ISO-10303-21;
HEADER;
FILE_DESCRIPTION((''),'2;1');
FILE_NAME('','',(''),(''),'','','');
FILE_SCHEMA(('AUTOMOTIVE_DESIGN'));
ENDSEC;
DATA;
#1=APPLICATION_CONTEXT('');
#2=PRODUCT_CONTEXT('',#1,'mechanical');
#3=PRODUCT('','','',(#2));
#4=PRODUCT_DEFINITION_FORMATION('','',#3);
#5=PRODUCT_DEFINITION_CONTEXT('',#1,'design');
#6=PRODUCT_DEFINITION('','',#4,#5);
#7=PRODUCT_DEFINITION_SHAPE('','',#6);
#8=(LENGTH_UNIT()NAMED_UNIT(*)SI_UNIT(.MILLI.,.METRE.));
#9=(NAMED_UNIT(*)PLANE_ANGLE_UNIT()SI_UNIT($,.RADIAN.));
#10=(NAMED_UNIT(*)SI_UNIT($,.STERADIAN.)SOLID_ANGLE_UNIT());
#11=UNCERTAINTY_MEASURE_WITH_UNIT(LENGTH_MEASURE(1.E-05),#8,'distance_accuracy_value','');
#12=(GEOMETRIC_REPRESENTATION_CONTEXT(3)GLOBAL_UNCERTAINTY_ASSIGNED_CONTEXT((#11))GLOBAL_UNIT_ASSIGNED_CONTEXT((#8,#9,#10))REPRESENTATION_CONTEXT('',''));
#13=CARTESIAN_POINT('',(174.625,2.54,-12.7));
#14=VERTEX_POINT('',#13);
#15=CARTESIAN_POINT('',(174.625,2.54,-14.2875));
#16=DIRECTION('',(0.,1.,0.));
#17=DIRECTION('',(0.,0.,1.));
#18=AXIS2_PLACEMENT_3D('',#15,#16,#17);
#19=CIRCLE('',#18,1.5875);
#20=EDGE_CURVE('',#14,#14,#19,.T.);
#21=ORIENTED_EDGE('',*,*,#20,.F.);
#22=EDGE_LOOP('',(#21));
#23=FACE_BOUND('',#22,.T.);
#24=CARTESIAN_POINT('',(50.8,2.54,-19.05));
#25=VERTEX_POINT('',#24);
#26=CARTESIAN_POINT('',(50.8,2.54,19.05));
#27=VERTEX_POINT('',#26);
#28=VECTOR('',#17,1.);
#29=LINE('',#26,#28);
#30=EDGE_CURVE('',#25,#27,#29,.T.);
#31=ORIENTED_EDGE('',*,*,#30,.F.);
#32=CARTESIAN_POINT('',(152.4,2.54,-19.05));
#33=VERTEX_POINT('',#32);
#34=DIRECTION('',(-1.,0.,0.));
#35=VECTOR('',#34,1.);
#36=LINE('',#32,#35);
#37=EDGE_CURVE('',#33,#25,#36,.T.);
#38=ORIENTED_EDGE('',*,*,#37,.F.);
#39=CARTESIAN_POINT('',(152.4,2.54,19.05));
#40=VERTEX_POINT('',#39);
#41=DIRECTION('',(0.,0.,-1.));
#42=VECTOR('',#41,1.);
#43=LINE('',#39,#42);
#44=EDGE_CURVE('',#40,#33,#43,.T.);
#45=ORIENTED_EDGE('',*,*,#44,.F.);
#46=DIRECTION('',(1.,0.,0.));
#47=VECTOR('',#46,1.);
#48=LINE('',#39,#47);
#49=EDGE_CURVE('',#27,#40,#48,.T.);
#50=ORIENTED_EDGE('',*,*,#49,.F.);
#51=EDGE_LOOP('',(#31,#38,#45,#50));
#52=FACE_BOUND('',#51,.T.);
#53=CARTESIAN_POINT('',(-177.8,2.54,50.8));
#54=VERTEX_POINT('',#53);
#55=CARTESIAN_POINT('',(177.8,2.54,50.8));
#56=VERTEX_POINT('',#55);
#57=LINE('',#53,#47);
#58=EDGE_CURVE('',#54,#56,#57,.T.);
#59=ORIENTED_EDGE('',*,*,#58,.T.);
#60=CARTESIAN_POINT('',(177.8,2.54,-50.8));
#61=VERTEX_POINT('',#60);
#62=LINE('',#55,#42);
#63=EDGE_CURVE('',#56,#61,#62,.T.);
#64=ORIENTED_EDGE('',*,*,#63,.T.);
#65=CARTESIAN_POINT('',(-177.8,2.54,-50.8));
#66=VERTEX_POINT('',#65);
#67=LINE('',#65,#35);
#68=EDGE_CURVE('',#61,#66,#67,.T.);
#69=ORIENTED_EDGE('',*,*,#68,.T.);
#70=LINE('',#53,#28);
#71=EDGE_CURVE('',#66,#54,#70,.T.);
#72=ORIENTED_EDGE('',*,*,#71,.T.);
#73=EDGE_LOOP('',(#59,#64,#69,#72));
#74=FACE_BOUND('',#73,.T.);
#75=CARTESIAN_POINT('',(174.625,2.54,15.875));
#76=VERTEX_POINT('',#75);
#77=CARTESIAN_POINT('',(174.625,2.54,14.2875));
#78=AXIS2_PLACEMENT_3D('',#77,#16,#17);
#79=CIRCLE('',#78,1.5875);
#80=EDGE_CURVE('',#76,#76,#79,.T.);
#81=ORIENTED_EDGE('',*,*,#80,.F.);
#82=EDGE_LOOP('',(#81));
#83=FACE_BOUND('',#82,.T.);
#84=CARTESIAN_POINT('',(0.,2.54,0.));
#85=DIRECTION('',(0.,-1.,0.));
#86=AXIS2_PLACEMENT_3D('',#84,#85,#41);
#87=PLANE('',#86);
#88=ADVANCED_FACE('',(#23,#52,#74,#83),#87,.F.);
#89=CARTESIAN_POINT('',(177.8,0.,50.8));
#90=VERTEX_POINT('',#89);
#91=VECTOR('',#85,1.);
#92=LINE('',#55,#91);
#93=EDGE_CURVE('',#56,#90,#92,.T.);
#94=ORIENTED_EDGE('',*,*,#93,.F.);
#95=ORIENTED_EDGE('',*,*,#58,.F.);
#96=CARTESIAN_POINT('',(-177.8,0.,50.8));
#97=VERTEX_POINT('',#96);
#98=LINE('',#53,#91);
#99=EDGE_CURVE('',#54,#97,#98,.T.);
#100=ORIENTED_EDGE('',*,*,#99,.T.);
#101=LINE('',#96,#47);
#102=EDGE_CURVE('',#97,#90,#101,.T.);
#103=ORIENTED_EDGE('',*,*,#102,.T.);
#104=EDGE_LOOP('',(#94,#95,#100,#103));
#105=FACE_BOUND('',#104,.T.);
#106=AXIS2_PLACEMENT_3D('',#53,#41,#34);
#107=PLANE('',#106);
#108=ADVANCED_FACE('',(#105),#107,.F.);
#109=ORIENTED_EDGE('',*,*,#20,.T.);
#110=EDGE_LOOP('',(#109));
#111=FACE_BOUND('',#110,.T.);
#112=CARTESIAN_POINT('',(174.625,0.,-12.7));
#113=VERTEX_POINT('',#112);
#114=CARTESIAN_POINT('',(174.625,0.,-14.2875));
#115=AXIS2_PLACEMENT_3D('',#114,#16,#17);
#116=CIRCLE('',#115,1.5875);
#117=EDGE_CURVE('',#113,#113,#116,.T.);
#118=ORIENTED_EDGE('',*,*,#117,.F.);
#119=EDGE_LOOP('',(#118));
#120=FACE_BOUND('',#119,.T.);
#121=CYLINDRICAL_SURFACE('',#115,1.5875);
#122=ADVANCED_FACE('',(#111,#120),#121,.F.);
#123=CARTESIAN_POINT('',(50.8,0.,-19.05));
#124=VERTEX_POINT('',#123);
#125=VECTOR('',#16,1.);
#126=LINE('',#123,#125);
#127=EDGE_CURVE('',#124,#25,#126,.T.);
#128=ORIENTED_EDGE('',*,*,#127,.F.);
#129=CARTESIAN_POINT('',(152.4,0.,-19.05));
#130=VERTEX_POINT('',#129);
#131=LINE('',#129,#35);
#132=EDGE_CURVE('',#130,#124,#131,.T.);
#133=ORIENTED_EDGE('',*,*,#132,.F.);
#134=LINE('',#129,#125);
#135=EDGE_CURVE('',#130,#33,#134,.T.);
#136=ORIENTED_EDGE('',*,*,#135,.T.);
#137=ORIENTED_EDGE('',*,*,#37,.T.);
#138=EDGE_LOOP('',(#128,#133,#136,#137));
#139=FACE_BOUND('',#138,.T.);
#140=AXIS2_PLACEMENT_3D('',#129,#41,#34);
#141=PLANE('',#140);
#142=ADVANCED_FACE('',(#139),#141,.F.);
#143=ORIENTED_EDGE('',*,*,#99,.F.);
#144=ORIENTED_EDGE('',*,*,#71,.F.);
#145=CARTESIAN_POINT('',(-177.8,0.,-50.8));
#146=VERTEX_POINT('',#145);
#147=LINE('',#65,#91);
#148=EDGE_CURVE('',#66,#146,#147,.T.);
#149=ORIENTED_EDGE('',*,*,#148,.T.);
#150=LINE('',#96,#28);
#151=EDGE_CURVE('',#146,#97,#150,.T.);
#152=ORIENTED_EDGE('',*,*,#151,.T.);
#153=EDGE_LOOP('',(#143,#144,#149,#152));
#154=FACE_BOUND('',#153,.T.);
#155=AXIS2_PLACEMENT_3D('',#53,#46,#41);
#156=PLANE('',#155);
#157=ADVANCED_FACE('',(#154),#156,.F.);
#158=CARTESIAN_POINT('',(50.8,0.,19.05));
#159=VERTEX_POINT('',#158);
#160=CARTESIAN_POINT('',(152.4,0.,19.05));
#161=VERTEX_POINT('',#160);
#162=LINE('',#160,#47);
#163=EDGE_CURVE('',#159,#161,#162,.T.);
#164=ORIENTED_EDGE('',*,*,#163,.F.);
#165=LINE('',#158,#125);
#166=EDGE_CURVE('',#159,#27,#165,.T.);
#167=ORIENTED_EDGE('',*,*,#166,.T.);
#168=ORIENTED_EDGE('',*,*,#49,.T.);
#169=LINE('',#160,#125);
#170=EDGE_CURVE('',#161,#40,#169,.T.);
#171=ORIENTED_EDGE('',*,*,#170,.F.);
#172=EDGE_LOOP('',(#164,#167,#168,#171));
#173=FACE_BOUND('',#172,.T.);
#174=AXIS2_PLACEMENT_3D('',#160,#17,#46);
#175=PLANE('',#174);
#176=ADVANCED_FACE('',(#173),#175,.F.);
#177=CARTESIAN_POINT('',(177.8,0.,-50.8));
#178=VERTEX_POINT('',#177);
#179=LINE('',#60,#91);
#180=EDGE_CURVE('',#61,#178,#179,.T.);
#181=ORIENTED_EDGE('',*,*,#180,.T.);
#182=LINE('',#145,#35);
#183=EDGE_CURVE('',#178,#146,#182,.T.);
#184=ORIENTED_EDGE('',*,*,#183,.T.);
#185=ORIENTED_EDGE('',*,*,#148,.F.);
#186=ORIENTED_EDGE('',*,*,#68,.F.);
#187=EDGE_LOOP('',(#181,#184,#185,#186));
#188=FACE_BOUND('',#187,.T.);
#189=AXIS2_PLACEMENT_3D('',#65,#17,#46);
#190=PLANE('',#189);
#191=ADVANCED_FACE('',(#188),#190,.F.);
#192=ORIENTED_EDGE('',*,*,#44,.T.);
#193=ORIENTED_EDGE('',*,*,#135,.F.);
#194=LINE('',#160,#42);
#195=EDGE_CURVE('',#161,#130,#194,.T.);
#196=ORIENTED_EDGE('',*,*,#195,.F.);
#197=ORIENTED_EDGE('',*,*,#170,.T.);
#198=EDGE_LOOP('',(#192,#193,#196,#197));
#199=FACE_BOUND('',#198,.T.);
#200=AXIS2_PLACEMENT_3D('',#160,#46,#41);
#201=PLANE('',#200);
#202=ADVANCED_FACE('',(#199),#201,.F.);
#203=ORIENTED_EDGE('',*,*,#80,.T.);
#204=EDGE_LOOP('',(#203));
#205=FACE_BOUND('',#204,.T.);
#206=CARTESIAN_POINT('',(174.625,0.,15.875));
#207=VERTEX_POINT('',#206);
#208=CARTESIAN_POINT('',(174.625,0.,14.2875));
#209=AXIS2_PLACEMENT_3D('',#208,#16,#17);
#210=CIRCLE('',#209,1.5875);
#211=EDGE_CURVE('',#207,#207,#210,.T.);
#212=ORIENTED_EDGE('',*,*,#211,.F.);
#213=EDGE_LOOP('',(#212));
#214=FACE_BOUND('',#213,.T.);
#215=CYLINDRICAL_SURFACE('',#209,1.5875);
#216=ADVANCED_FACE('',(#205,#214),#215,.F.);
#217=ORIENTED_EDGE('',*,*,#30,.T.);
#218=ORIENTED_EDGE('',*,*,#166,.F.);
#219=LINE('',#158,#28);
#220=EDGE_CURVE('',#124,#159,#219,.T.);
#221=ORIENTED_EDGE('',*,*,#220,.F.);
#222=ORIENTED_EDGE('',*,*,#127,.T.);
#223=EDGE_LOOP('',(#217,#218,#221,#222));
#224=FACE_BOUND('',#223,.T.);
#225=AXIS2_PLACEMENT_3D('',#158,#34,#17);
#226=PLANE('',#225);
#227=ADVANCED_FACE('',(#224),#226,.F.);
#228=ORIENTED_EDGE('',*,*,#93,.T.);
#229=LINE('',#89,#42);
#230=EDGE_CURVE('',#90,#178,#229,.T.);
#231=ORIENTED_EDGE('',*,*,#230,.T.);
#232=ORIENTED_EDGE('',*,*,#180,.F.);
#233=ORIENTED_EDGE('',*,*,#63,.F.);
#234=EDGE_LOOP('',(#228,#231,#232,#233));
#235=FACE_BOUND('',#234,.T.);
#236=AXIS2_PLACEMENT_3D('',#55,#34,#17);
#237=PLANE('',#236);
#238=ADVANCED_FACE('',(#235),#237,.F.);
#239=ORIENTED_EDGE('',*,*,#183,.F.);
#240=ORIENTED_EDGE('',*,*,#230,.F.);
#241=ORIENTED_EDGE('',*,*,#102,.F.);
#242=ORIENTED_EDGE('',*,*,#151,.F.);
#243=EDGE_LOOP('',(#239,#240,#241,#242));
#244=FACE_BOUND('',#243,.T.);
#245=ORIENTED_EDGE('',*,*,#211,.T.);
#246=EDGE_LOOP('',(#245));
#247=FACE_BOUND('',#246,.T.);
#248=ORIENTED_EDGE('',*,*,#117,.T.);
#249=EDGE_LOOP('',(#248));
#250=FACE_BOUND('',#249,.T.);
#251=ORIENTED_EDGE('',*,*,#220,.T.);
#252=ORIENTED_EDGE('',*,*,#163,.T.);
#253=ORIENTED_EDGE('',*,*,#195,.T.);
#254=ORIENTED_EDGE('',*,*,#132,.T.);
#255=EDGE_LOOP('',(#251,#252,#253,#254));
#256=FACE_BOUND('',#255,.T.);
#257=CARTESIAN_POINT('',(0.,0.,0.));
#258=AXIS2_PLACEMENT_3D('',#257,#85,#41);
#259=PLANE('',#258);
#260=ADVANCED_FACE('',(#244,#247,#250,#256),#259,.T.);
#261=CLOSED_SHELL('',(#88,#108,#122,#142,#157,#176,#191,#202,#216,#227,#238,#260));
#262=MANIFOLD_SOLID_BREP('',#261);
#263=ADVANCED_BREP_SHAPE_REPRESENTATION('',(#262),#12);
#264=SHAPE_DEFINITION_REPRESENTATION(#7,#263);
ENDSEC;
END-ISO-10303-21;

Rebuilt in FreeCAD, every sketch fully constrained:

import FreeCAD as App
import Part
import Sketcher

V = App.Vector
Q = App.Units.Quantity

doc = App.newDocument("Part")
body = doc.addObject("PartDesign::Body", "Body")

sketch1 = body.newObject("Sketcher::SketchObject", "Sketch")
sketch1.AttachmentSupport = (doc.getObject("XZ_Plane"), [""])
sketch1.MapMode = "FlatFace"
sketch1.addGeometry([
    Part.LineSegment(V(-178, -51, 0), V(-178, 51, 0)),
    Part.LineSegment(V(-178, 51, 0), V(178, 51, 0)),
    Part.LineSegment(V(178, 51, 0), V(178, -51, 0)),
    Part.LineSegment(V(178, -51, 0), V(-178, -51, 0)),
], False)
sketch1.addConstraint([
    Sketcher.Constraint("Coincident", 0, 2, 1, 1),
    Sketcher.Constraint("Coincident", 1, 2, 2, 1),
    Sketcher.Constraint("Coincident", 2, 2, 3, 1),
    Sketcher.Constraint("Coincident", 3, 2, 0, 1),
    Sketcher.Constraint("Vertical", 0),
    Sketcher.Constraint("Horizontal", 1),
    Sketcher.Constraint("Vertical", 2),
    Sketcher.Constraint("Horizontal", 3),
    Sketcher.Constraint("Symmetric", 0, 2, 2, 2, -1, 1),
    Sketcher.Constraint("DistanceX", 1, 1, 1, 2, Q("14 in")),
    Sketcher.Constraint("DistanceY", 0, 1, 0, 2, Q("4 in")),
])
pad1 = body.newObject("PartDesign::Pad", "Pad")
pad1.Profile = sketch1
pad1.Length = Q("0.1 in")
pad1.Reversed = True

sketch2 = body.newObject("Sketcher::SketchObject", "Sketch001")
sketch2.AttachmentSupport = (doc.getObject("XZ_Plane"), [""])
sketch2.MapMode = "FlatFace"
sketch2.AttachmentOffset = App.Placement(V(0, 0, -0.1 * 25.4), App.Rotation())
sketch2.addGeometry([
    Part.Circle(V(174.6, 14.3, 0), V(0, 0, 1), 1.6),
    Part.Circle(V(174.6, -14.3, 0), V(0, 0, 1), 1.6),
    Part.LineSegment(V(50.8, -19.1, 0), V(50.8, 19.1, 0)),
    Part.LineSegment(V(50.8, 19.1, 0), V(152.4, 19.1, 0)),
    Part.LineSegment(V(152.4, 19.1, 0), V(152.4, -19.1, 0)),
    Part.LineSegment(V(152.4, -19.1, 0), V(50.8, -19.1, 0)),
], False)
sketch2.addConstraint([
    Sketcher.Constraint("Coincident", 2, 2, 3, 1),
    Sketcher.Constraint("Coincident", 3, 2, 4, 1),
    Sketcher.Constraint("Coincident", 4, 2, 5, 1),
    Sketcher.Constraint("Coincident", 5, 2, 2, 1),
    Sketcher.Constraint("Vertical", 2),
    Sketcher.Constraint("Horizontal", 3),
    Sketcher.Constraint("Vertical", 4),
    Sketcher.Constraint("Horizontal", 5),
    Sketcher.Constraint("Equal", 0, 1),
    Sketcher.Constraint("Symmetric", 0, 3, 1, 3, -1),
    Sketcher.Constraint("DistanceX", 3, 1, 3, 2, Q("4 in")),
    Sketcher.Constraint("Diameter", 0, Q("0.125 in")),
    Sketcher.Constraint("DistanceY", 2, 1, 2, 2, Q("1.5 in")),
    Sketcher.Constraint("DistanceX", -1, 1, 2, 2, Q("2 in")),
    Sketcher.Constraint("DistanceY", -1, 1, 2, 2, Q("0.75 in")),
    Sketcher.Constraint("DistanceX", -1, 1, 0, 3, Q("6.875 in")),
    Sketcher.Constraint("DistanceY", -1, 1, 0, 3, Q("0.5625 in")),
])
pocket1 = body.newObject("PartDesign::Pocket", "Pocket")
pocket1.Profile = sketch2
pocket1.Length = Q("0.1 in")
pocket1.Reversed = True

doc.recompute()
